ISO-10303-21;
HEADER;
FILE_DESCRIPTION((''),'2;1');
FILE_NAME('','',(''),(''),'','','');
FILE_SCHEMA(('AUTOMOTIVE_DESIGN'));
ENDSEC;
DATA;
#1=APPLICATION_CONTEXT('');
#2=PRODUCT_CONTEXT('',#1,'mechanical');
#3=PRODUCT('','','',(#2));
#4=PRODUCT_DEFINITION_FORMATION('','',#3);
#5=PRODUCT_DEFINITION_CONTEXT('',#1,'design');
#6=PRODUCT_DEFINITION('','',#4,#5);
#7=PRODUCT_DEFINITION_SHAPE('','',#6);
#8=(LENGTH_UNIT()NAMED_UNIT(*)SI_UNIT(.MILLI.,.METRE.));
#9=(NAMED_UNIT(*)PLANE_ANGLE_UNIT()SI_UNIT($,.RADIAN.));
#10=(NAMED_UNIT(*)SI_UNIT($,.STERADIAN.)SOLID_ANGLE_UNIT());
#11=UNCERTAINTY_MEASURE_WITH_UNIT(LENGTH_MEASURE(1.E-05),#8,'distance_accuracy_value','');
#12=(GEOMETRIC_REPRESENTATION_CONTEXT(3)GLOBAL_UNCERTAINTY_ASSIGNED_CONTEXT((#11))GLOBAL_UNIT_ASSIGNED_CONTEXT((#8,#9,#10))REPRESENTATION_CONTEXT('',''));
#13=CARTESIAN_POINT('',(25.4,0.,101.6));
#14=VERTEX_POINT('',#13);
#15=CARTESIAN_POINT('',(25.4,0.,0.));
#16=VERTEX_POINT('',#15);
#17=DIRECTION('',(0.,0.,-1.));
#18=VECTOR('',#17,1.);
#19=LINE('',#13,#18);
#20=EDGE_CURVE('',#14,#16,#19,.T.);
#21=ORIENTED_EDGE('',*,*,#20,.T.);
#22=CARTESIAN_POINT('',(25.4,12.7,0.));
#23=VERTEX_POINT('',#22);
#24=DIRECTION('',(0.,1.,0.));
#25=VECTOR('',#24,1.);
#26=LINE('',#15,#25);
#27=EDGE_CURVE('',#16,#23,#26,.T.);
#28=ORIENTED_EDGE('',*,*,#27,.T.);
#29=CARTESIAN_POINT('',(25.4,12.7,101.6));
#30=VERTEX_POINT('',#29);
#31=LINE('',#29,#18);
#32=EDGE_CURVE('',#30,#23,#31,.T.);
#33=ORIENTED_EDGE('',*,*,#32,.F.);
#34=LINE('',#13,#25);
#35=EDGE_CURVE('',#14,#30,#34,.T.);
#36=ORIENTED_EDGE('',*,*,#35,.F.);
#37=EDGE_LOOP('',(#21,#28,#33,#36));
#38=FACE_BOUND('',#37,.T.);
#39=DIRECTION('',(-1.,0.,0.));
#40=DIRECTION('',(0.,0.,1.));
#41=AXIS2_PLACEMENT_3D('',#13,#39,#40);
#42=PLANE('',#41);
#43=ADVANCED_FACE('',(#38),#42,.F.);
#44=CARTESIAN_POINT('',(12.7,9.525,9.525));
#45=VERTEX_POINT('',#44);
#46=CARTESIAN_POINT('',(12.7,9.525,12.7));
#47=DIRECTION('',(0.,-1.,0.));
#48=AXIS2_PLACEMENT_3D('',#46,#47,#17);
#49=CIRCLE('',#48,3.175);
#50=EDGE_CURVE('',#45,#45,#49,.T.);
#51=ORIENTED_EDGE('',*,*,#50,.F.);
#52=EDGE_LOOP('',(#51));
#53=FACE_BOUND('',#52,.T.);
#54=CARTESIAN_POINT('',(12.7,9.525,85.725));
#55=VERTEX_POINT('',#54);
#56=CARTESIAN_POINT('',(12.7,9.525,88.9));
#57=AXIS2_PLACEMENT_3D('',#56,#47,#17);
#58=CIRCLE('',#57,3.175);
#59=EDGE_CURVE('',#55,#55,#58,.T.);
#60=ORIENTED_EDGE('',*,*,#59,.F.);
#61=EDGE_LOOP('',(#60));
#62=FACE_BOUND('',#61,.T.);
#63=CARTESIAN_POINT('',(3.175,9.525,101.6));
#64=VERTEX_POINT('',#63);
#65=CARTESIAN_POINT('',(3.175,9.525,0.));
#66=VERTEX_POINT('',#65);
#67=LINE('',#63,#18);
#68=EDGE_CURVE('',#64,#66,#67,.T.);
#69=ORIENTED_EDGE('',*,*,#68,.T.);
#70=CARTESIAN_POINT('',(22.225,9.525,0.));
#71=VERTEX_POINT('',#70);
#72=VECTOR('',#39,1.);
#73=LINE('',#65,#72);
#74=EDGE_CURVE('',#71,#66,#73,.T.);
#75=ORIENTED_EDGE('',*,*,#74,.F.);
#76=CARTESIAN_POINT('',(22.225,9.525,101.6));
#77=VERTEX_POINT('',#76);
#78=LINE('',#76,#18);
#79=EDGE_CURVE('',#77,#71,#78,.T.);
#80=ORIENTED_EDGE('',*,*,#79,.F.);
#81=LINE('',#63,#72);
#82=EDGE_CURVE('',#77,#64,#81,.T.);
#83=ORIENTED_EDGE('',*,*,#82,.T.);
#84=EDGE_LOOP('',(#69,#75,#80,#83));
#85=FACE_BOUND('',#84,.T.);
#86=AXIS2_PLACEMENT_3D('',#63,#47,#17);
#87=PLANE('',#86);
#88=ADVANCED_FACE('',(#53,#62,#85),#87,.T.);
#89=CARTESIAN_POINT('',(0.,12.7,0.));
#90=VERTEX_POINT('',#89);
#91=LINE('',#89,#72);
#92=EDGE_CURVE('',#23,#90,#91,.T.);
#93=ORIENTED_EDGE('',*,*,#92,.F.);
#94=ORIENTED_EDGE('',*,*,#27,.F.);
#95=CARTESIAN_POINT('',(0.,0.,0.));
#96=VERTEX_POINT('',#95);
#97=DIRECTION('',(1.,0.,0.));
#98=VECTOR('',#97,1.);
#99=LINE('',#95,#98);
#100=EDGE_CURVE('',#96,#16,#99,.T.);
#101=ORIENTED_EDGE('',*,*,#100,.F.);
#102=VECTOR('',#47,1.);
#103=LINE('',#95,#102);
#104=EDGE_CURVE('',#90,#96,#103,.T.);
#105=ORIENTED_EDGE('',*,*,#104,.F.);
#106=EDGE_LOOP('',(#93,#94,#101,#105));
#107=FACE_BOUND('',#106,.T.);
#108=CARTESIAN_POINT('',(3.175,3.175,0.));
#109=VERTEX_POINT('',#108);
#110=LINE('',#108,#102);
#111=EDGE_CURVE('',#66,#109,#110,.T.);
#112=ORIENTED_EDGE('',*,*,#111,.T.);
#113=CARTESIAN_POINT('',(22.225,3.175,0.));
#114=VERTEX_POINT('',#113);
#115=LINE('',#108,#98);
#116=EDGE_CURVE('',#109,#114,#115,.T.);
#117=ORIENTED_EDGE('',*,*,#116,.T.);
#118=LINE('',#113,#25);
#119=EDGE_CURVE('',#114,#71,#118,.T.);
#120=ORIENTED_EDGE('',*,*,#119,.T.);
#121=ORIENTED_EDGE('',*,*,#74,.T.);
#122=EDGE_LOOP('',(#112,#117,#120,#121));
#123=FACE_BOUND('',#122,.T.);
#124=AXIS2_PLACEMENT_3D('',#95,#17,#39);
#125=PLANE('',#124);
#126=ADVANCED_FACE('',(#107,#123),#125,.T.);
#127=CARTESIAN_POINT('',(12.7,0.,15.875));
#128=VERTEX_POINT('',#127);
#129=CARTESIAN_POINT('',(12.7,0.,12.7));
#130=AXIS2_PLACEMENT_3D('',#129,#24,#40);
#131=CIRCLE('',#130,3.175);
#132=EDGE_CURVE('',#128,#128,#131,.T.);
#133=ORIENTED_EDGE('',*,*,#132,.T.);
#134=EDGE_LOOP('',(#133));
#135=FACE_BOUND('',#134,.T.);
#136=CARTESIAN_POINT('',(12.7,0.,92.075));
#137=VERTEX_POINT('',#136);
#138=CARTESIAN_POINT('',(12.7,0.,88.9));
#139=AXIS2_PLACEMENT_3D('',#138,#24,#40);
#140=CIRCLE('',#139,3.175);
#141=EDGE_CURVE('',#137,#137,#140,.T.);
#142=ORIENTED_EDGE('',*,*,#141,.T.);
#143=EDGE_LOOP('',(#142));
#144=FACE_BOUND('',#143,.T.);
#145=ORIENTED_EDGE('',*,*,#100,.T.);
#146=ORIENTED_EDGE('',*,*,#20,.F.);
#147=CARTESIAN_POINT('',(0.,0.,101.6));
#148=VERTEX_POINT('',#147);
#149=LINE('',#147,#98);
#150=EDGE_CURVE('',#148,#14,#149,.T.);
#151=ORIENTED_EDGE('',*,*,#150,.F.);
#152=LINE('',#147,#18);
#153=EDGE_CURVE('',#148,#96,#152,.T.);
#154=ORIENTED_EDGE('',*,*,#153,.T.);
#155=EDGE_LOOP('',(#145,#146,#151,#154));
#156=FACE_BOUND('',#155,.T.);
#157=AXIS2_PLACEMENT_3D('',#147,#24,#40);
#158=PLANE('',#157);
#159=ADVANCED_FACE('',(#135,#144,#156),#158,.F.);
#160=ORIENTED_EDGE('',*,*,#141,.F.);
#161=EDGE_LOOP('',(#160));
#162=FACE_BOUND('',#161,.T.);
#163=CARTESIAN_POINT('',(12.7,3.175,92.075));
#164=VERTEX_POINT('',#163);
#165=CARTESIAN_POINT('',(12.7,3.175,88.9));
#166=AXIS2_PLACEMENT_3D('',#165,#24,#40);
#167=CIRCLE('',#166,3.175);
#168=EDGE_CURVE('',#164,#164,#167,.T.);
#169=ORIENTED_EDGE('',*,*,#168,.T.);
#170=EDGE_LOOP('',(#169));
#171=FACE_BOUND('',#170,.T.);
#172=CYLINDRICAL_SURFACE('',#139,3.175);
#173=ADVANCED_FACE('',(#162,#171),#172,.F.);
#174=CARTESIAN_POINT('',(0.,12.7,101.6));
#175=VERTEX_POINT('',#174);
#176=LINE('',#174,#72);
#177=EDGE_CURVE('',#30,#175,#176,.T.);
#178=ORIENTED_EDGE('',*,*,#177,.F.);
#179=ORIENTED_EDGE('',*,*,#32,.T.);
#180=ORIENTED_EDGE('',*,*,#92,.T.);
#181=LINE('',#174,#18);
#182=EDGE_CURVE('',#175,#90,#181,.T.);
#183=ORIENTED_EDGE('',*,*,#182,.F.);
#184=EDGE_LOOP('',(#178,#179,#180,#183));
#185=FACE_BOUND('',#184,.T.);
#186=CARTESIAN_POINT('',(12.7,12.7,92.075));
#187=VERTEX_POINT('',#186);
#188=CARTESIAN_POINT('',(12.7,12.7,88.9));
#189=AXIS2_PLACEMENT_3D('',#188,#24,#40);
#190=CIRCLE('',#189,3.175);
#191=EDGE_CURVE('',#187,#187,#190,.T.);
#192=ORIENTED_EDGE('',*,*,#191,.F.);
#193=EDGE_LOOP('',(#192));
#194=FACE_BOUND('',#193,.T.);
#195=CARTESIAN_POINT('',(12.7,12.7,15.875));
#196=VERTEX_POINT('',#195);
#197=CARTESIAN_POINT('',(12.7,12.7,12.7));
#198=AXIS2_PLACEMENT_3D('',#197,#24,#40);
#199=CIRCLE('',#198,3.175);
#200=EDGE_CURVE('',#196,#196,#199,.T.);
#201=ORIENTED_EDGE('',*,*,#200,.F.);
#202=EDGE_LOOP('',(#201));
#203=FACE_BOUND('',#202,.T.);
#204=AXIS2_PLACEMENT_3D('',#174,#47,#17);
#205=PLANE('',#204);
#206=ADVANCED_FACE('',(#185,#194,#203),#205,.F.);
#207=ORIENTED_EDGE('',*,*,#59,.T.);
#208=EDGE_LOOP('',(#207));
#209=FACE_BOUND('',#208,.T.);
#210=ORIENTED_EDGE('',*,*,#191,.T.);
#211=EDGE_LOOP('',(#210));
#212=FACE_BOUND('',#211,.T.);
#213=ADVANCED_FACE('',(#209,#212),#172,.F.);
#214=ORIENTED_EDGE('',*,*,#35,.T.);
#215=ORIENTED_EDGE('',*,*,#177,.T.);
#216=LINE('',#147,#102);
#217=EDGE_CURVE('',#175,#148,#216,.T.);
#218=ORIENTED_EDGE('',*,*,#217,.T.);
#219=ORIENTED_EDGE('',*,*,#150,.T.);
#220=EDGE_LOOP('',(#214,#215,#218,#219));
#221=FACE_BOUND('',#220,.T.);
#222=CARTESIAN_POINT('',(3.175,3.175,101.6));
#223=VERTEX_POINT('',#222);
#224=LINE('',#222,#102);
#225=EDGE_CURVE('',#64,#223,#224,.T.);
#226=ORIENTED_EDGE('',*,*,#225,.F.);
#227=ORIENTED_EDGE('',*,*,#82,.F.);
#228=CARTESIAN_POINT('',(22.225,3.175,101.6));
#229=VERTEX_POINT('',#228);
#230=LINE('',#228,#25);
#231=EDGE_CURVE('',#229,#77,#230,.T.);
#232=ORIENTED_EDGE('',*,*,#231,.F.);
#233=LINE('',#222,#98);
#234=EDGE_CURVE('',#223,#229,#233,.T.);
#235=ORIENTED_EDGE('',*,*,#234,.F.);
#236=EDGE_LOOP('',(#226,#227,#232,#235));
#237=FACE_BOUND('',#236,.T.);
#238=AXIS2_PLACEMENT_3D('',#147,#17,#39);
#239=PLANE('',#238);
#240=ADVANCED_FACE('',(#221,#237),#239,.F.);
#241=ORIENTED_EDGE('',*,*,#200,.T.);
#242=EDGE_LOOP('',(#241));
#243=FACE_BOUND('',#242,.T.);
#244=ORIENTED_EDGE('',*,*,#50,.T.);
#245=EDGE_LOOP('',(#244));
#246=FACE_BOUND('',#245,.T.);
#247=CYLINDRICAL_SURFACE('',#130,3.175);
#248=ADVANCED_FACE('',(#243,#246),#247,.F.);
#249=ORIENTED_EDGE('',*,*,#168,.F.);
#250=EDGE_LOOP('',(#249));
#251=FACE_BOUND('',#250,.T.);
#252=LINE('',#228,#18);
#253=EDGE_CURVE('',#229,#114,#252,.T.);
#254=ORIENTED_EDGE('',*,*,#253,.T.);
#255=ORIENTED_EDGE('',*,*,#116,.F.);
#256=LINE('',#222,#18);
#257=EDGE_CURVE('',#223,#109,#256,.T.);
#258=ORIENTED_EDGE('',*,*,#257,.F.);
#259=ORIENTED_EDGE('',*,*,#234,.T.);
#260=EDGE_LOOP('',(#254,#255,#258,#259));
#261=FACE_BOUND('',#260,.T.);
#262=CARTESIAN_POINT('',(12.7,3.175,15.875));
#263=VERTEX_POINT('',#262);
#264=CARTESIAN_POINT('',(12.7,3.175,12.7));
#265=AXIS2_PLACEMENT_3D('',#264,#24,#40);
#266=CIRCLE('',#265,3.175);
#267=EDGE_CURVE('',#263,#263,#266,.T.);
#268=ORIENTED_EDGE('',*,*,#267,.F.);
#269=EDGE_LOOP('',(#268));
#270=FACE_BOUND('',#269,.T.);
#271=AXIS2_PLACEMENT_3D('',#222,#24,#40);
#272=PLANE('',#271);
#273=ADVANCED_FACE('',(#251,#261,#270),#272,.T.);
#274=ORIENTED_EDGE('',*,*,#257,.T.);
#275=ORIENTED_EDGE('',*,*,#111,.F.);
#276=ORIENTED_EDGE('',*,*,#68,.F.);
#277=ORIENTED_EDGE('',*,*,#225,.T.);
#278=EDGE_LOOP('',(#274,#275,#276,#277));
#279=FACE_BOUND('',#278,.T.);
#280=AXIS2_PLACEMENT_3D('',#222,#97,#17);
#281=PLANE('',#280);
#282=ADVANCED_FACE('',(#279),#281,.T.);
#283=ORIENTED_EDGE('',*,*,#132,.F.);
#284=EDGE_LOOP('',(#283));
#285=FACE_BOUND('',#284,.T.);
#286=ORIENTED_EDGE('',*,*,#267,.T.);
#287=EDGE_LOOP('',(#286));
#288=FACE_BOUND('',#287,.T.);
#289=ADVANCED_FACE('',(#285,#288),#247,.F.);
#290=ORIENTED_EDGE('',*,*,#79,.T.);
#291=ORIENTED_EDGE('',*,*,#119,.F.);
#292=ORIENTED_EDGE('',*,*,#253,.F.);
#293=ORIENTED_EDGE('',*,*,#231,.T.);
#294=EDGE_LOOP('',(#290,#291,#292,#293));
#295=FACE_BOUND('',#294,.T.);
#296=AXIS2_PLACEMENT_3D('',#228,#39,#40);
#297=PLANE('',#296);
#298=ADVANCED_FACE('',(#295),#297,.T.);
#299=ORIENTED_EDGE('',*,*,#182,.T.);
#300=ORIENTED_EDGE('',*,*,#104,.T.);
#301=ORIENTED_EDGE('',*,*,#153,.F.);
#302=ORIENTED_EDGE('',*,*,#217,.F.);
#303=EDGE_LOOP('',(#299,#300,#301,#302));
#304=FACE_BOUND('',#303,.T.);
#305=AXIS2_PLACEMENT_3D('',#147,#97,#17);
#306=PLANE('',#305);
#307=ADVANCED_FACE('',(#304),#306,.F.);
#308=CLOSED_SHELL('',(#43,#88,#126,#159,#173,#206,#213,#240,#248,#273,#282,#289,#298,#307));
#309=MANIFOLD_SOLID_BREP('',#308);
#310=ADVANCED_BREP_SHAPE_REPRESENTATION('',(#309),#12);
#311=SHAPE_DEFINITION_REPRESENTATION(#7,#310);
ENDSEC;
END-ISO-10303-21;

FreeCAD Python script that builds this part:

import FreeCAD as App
import Part
import Sketcher

V = App.Vector
Q = App.Units.Quantity


def add_polygon(sketch, points):
    """Adds a closed chain of lines whose ends are joined by coincident constraints."""
    first, n = sketch.GeometryCount, len(points)
    for a, b in zip(points, points[1:] + points[:1]):
        sketch.addGeometry(Part.LineSegment(App.Vector(*a, 0), App.Vector(*b, 0)), False)
    for i in range(n):
        sketch.addConstraint(Sketcher.Constraint("Coincident", first + i, 2, first + (i + 1) % n, 1))

doc = App.newDocument("Part")
body = doc.addObject("PartDesign::Body", "Body")

sketch1 = body.newObject("Sketcher::SketchObject", "Sketch")
sketch1.AttachmentSupport = (doc.getObject("XY_Plane"), [""])
sketch1.MapMode = "FlatFace"
add_polygon(sketch1, [(0, 13), (0, 0), (25, 0), (25, 13)])
add_polygon(sketch1, [(22, 3), (3, 3), (3, 10), (22, 10)])
sketch1.addConstraint([
    Sketcher.Constraint("Vertical", 0),
    Sketcher.Constraint("Horizontal", 1),
    Sketcher.Constraint("Vertical", 2),
    Sketcher.Constraint("Horizontal", 3),
    Sketcher.Constraint("Horizontal", 4),
    Sketcher.Constraint("Vertical", 5),
    Sketcher.Constraint("Horizontal", 6),
    Sketcher.Constraint("Vertical", 7),
    Sketcher.Constraint("Coincident", 0, 2, -1, 1),
    Sketcher.Constraint("DistanceX", 1, 1, 1, 2, Q("1 in")),
    Sketcher.Constraint("DistanceY", 0, 2, 0, 1, Q("0.5 in")),
    Sketcher.Constraint("DistanceX", 4, 2, 4, 1, Q("0.75 in")),
    Sketcher.Constraint("DistanceY", 5, 1, 5, 2, Q("0.25 in")),
    Sketcher.Constraint("DistanceX", -1, 1, 4, 2, Q("0.125 in")),
    Sketcher.Constraint("DistanceY", -1, 1, 4, 2, Q("0.125 in")),
])
pad1 = body.newObject("PartDesign::Pad", "Pad")
pad1.Profile = sketch1
pad1.Length = Q("4 in")

sketch2 = body.newObject("Sketcher::SketchObject", "Sketch001")
sketch2.AttachmentSupport = (doc.getObject("XZ_Plane"), [""])
sketch2.MapMode = "FlatFace"
sketch2.AttachmentOffset = App.Placement(V(0, 0, -0.5 * 25.4), App.Rotation())
sketch2.addGeometry([
    Part.Circle(V(12.7, 88.9, 0), V(0, 0, 1), 3.2),
    Part.Circle(V(12.7, 12.7, 0), V(0, 0, 1), 3.2),
], False)
sketch2.addConstraint([
    Sketcher.Constraint("Equal", 0, 1),
    Sketcher.Constraint("Vertical", 0, 3, 1, 3),
    Sketcher.Constraint("Diameter", 0, Q("0.25 in")),
    Sketcher.Constraint("DistanceY", 1, 3, 0, 3, Q("3 in")),
    Sketcher.Constraint("DistanceX", -1, 1, 0, 3, Q("0.5 in")),
    Sketcher.Constraint("DistanceY", -1, 1, 0, 3, Q("3.5 in")),
])
pocket1 = body.newObject("PartDesign::Pocket", "Pocket")
pocket1.Profile = sketch2
pocket1.Type = "ThroughAll"
pocket1.Reversed = True

doc.recompute()
